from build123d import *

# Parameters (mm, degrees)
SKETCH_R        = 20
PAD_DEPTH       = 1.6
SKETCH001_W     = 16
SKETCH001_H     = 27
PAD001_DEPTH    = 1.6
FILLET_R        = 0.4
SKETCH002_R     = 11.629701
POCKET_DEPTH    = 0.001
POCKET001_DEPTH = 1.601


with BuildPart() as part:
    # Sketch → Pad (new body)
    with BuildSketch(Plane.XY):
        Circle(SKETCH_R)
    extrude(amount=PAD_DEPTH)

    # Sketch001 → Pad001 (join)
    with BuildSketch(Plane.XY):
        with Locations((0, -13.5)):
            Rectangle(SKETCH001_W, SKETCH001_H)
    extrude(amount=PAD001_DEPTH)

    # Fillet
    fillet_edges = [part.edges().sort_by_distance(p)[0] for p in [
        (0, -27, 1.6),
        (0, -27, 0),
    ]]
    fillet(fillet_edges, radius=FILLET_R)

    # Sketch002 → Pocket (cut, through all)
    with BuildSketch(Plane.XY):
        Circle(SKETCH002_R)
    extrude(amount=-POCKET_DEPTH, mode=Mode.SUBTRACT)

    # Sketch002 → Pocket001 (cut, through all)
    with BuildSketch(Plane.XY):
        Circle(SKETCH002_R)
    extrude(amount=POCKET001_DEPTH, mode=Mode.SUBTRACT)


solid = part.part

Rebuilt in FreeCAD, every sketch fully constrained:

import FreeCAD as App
import Part
import Sketcher


def edges_at(feature, points):
    """Names of the edges that pass closest to the given points."""
    edges = feature.Shape.Edges
    near = lambda p: min(range(len(edges)), key=lambda i: edges[i].distToShape(Part.Vertex(*p))[0])
    return sorted({f"Edge{near(p) + 1}" for p in points})

doc = App.newDocument("Part")
body = doc.addObject("PartDesign::Body", "Body")

# Sketch on XY plane
sketch1 = body.newObject("Sketcher::SketchObject", "Sketch")
sketch1.AttachmentSupport = (doc.getObject("XY_Plane"), [""])
sketch1.MapMode = "FlatFace"
sketch1.addGeometry(Part.Circle(App.Vector(0, 0, 0), App.Vector(0, 0, 1), 20), False)
sketch1.addConstraint([
    Sketcher.Constraint("Coincident", 0, 3, -1, 1),
    Sketcher.Constraint("Diameter", 0, 40.0),
])
pad1 = body.newObject("PartDesign::Pad", "Pad")
pad1.Profile = sketch1
pad1.Length = 1.6

# Sketch on XY plane
sketch2 = body.newObject("Sketcher::SketchObject", "Sketch001")
sketch2.AttachmentSupport = (doc.getObject("XY_Plane"), [""])
sketch2.MapMode = "FlatFace"
sketch2.addGeometry([
    Part.LineSegment(App.Vector(-8, 0, 0), App.Vector(-8, -27, 0)),
    Part.LineSegment(App.Vector(-8, -27, 0), App.Vector(8, -27, 0)),
    Part.LineSegment(App.Vector(8, -27, 0), App.Vector(8, 0, 0)),
    Part.LineSegment(App.Vector(8, 0, 0), App.Vector(-8, 0, 0)),
], False)
sketch2.addConstraint([
    Sketcher.Constraint("Coincident", 0, 2, 1, 1),
    Sketcher.Constraint("Coincident", 1, 2, 2, 1),
    Sketcher.Constraint("Coincident", 2, 2, 3, 1),
    Sketcher.Constraint("Coincident", 3, 2, 0, 1),
    Sketcher.Constraint("Vertical", 0),
    Sketcher.Constraint("Horizontal", 1),
    Sketcher.Constraint("Vertical", 2),
    Sketcher.Constraint("Horizontal", 3),
    Sketcher.Constraint("Symmetric", 2, 2, 3, 2, -1, 1),
    Sketcher.Constraint("DistanceX", 1, 1, 1, 2, 16.0),
    Sketcher.Constraint("DistanceY", 0, 2, 0, 1, 27.0),
])
pad2 = body.newObject("PartDesign::Pad", "Pad001")
pad2.Profile = sketch2
pad2.Length = 1.6
doc.recompute()

fillet = body.newObject("PartDesign::Fillet", "Fillet")
fillet.Base = (pad2, edges_at(pad2, [(0, -27, 1.6), (0, -27, 0)]))
fillet.Radius = 0.4

# Sketch on XY plane
sketch3 = body.newObject("Sketcher::SketchObject", "Sketch002")
sketch3.AttachmentSupport = (doc.getObject("XY_Plane"), [""])
sketch3.MapMode = "FlatFace"
sketch3.addGeometry(Part.Circle(App.Vector(0, 0, 0), App.Vector(0, 0, 1), 12), False)
sketch3.addConstraint([
    Sketcher.Constraint("Coincident", 0, 3, -1, 1),
    Sketcher.Constraint("Diameter", 0, 23.259402),
])
pocket1 = body.newObject("PartDesign::Pocket", "Pocket")
pocket1.Profile = sketch3
pocket1.Type = "ThroughAll"

# Sketch on XY plane
sketch4 = body.newObject("Sketcher::SketchObject", "Sketch003")
sketch4.AttachmentSupport = (doc.getObject("XY_Plane"), [""])
sketch4.MapMode = "FlatFace"
sketch4.addGeometry(Part.Circle(App.Vector(0, 0, 0), App.Vector(0, 0, 1), 12), False)
sketch4.addConstraint([
    Sketcher.Constraint("Coincident", 0, 3, -1, 1),
    Sketcher.Constraint("Diameter", 0, 23.259402),
])
pocket2 = body.newObject("PartDesign::Pocket", "Pocket001")
pocket2.Profile = sketch4
pocket2.Type = "ThroughAll"
pocket2.Reversed = True

doc.recompute()
